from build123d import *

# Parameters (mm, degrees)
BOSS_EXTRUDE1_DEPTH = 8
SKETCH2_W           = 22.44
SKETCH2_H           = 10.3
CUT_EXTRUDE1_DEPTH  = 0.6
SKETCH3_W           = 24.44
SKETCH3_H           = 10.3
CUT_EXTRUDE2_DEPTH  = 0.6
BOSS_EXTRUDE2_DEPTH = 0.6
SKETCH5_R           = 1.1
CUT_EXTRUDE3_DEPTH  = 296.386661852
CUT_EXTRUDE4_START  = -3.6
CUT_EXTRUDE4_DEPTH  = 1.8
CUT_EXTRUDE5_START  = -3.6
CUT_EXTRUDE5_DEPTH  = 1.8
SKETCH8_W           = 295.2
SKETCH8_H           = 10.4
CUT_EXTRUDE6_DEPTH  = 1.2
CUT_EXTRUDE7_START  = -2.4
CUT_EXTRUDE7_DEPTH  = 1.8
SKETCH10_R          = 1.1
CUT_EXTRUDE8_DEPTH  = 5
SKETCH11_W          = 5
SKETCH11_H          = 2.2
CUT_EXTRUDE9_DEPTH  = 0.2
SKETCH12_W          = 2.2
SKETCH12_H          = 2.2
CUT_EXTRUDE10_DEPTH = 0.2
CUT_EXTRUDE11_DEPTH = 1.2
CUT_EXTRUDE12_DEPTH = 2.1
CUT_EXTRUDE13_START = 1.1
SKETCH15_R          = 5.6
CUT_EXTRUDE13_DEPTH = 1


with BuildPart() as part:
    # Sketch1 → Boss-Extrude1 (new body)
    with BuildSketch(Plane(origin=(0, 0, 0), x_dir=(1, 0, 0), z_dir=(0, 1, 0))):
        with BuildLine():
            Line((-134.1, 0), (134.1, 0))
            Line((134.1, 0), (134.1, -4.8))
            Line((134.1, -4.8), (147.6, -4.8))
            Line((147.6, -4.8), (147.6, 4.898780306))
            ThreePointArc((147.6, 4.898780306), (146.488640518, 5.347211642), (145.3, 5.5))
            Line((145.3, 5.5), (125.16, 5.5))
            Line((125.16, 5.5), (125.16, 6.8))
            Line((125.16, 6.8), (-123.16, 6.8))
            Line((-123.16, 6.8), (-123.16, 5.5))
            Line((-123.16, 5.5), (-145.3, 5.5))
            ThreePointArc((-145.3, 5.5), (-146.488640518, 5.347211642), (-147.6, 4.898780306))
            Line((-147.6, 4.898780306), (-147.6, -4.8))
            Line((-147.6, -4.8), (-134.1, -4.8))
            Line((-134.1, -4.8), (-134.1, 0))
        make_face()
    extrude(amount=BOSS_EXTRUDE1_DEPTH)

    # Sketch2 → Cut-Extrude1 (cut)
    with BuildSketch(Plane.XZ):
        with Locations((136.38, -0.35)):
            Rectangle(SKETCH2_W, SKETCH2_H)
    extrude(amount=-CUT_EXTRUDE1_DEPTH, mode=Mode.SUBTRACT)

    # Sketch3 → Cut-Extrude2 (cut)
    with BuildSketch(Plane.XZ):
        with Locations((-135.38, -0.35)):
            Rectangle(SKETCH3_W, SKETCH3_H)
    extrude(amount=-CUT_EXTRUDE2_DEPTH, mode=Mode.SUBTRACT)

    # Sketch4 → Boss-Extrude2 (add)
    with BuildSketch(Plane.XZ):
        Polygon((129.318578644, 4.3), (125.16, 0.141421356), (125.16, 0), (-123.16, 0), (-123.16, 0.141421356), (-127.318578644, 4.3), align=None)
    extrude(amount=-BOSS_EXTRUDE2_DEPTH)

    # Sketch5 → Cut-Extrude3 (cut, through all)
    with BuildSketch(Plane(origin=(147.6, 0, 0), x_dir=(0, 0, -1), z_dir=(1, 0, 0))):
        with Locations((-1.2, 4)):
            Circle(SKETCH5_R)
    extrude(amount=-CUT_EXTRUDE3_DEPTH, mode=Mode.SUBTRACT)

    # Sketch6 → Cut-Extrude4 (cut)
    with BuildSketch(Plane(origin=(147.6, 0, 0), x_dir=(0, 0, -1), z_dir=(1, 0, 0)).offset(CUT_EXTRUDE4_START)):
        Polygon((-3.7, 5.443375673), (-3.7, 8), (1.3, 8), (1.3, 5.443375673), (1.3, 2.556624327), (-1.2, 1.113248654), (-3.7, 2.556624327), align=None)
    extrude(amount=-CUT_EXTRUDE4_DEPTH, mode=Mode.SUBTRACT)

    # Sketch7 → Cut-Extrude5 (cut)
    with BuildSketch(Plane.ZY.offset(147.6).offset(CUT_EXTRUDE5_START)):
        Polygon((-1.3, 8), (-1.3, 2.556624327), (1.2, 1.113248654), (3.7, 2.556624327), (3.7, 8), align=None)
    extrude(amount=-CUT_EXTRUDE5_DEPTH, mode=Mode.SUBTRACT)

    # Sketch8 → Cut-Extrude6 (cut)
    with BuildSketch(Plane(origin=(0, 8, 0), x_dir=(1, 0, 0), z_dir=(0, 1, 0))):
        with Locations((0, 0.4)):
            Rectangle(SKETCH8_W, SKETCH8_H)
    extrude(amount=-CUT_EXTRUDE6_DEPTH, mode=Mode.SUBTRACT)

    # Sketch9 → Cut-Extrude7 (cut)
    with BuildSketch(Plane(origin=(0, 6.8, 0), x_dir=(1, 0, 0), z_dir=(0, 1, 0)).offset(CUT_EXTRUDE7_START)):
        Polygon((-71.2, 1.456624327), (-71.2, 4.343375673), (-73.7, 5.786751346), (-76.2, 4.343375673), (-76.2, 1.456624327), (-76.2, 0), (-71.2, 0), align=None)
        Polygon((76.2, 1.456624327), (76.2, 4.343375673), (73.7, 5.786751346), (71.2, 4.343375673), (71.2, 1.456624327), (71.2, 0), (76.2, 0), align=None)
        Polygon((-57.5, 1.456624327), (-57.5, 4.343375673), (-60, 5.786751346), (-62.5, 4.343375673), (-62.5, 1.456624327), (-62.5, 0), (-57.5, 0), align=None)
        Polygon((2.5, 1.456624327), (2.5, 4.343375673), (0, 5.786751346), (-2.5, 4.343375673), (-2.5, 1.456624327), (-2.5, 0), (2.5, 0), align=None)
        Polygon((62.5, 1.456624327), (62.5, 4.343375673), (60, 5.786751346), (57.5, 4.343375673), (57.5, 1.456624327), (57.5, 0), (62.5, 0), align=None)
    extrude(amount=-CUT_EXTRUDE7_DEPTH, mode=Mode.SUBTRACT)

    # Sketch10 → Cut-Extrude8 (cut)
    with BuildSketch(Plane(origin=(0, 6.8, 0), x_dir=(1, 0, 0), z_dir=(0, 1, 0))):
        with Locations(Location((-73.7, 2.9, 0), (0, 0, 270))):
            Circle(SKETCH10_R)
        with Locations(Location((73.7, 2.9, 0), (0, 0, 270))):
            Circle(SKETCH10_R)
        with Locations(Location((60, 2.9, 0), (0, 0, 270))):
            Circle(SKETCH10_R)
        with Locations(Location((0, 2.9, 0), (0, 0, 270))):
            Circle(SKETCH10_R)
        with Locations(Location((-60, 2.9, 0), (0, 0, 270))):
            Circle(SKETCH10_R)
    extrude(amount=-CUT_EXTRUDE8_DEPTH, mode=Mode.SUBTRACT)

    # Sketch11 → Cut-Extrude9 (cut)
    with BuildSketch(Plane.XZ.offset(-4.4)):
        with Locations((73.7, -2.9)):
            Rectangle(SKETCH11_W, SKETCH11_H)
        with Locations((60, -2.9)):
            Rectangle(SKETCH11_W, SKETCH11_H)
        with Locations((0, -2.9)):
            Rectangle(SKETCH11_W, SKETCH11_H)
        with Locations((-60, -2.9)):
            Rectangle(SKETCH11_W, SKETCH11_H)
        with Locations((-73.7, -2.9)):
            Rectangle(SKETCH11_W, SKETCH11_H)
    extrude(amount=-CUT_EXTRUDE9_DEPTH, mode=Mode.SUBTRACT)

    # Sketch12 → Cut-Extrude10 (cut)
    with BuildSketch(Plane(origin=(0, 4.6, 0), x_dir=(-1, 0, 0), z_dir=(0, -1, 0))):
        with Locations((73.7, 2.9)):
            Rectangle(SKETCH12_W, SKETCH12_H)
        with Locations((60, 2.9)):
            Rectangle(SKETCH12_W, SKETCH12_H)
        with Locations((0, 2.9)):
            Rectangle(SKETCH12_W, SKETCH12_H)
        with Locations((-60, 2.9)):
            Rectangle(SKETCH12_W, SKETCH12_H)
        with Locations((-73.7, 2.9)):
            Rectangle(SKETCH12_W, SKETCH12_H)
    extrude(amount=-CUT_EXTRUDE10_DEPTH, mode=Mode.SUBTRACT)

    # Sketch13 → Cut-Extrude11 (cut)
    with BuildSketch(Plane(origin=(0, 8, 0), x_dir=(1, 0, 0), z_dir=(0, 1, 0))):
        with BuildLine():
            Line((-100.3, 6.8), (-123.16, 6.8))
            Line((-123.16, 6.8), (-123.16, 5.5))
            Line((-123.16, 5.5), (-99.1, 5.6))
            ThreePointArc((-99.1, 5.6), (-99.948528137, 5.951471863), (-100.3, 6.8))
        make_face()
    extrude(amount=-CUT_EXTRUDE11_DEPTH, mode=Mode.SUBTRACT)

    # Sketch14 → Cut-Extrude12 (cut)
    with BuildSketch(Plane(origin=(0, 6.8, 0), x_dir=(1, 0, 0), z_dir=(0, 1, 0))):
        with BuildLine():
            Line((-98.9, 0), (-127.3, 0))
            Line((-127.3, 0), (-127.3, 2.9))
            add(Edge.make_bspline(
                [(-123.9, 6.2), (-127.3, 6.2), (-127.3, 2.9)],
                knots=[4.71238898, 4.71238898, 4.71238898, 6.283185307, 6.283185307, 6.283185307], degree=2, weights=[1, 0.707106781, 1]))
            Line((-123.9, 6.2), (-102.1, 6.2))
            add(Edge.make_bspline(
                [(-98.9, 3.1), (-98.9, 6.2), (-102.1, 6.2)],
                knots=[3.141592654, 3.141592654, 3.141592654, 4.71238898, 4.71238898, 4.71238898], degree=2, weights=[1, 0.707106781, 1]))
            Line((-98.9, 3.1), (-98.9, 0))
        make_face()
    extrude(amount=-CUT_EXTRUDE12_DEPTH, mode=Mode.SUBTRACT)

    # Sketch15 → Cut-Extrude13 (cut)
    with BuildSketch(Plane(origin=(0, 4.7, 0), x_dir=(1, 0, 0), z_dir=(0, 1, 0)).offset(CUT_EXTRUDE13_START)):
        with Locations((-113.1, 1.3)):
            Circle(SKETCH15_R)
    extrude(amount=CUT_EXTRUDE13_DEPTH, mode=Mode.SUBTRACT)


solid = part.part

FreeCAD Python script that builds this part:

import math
import FreeCAD as App
import Part
import Sketcher
from FreeCAD import Vector
Q = App.Units.Quantity

doc = App.newDocument("Part")
body = doc.addObject("PartDesign::Body", "Body")

sketch1 = doc.addObject("Sketcher::SketchObject", "Sketch")
body.addObject(sketch1)
sketch1.AttachmentSupport = (doc.XZ_Plane, [""])
sketch1.MapMode = "FlatFace"
sketch1.addGeometry(Part.LineSegment(Vector(-134.1, 0, 0), Vector(134.1, 0, 0)), False)
sketch1.addGeometry(Part.LineSegment(Vector(134.1, 0, 0), Vector(134.1, 4.8, 0)), False)
sketch1.addGeometry(Part.LineSegment(Vector(134.1, 4.8, 0), Vector(147.6, 4.8, 0)), False)
sketch1.addGeometry(Part.LineSegment(Vector(147.6, 4.8, 0), Vector(147.6, -4.9, 0)), False)
sketch1.addGeometry(Part.ArcOfCircle(Part.Circle(Vector(145.3, -0.8, 0), Vector(0, 0, 1), 4.7), math.radians(-90), math.radians(-61)), False)
sketch1.addGeometry(Part.LineSegment(Vector(145.3, -5.5, 0), Vector(125.2, -5.5, 0)), False)
sketch1.addGeometry(Part.LineSegment(Vector(125.2, -5.5, 0), Vector(125.2, -6.8, 0)), False)
sketch1.addGeometry(Part.LineSegment(Vector(125.2, -6.8, 0), Vector(-123.2, -6.8, 0)), False)
sketch1.addGeometry(Part.LineSegment(Vector(-123.2, -6.8, 0), Vector(-123.2, -5.5, 0)), False)
sketch1.addGeometry(Part.LineSegment(Vector(-123.2, -5.5, 0), Vector(-145.3, -5.5, 0)), False)
sketch1.addGeometry(Part.ArcOfCircle(Part.Circle(Vector(-145.3, -0.8, 0), Vector(0, 0, 1), 4.7), math.radians(-119), math.radians(-90)), False)
sketch1.addGeometry(Part.LineSegment(Vector(-147.6, -4.9, 0), Vector(-147.6, 4.8, 0)), False)
sketch1.addGeometry(Part.LineSegment(Vector(-147.6, 4.8, 0), Vector(-134.1, 4.8, 0)), False)
sketch1.addGeometry(Part.LineSegment(Vector(-134.1, 4.8, 0), Vector(-134.1, 0, 0)), False)
sketch1.addConstraint(Sketcher.Constraint("Coincident", 0, 2, 1, 1))
sketch1.addConstraint(Sketcher.Constraint("Coincident", 1, 2, 2, 1))
sketch1.addConstraint(Sketcher.Constraint("Coincident", 2, 2, 3, 1))
sketch1.addConstraint(Sketcher.Constraint("Coincident", 3, 2, 4, 2))
sketch1.addConstraint(Sketcher.Constraint("Tangent", 4, 1, 5, 1))
sketch1.addConstraint(Sketcher.Constraint("Coincident", 5, 2, 6, 1))
sketch1.addConstraint(Sketcher.Constraint("Coincident", 6, 2, 7, 1))
sketch1.addConstraint(Sketcher.Constraint("Coincident", 7, 2, 8, 1))
sketch1.addConstraint(Sketcher.Constraint("Coincident", 8, 2, 9, 1))
sketch1.addConstraint(Sketcher.Constraint("Tangent", 9, 2, 10, 2))
sketch1.addConstraint(Sketcher.Constraint("Coincident", 10, 1, 11, 1))
sketch1.addConstraint(Sketcher.Constraint("Coincident", 11, 2, 12, 1))
sketch1.addConstraint(Sketcher.Constraint("Coincident", 12, 2, 13, 1))
sketch1.addConstraint(Sketcher.Constraint("Coincident", 13, 2, 0, 1))
sketch1.addConstraint(Sketcher.Constraint("Horizontal", 0))
sketch1.addConstraint(Sketcher.Constraint("Vertical", 1))
sketch1.addConstraint(Sketcher.Constraint("Horizontal", 2))
sketch1.addConstraint(Sketcher.Constraint("Vertical", 3))
sketch1.addConstraint(Sketcher.Constraint("Horizontal", 5))
sketch1.addConstraint(Sketcher.Constraint("Vertical", 6))
sketch1.addConstraint(Sketcher.Constraint("Horizontal", 7))
sketch1.addConstraint(Sketcher.Constraint("Vertical", 8))
sketch1.addConstraint(Sketcher.Constraint("Horizontal", 9))
sketch1.addConstraint(Sketcher.Constraint("Vertical", 11))
sketch1.addConstraint(Sketcher.Constraint("Horizontal", 12))
sketch1.addConstraint(Sketcher.Constraint("Vertical", 13))
sketch1.addConstraint(Sketcher.Constraint("Equal", 4, 10))
sketch1.addConstraint(Sketcher.Constraint("Symmetric", 0, 2, 13, 2, -1, 1))
sketch1.addConstraint(Sketcher.Constraint("Symmetric", 4, 3, 10, 3, -2))
sketch1.addConstraint(Sketcher.Constraint("Symmetric", 2, 2, 11, 2, -2))
sketch1.addConstraint(Sketcher.Constraint("Radius", 4, 4.7))
sketch1.addConstraint(Sketcher.Constraint("DistanceX", 0, 1, 0, 2, 268.2))
sketch1.addConstraint(Sketcher.Constraint("DistanceX", 2, 1, 2, 2, 13.5))
sketch1.addConstraint(Sketcher.Constraint("DistanceY", 1, 1, 1, 2, 4.8))
sketch1.addConstraint(Sketcher.Constraint("DistanceY", 6, 2, 6, 1, 1.3))
sketch1.addConstraint(Sketcher.Constraint("DistanceX", 5, 2, 5, 1, 20.14))
sketch1.addConstraint(Sketcher.Constraint("DistanceX", 7, 2, 7, 1, 248.32))
sketch1.addConstraint(Sketcher.Constraint("DistanceX", 9, 2, 9, 1, 22.14))
sketch1.addConstraint(Sketcher.Constraint("DistanceY", 4, 3, -1, 1, 0.8))
pad1 = doc.addObject("PartDesign::Pad", "Pad")
body.addObject(pad1)
pad1.Profile = sketch1
pad1.Length = 8
pad1.Reversed = True

sketch2 = doc.addObject("Sketcher::SketchObject", "Sketch001")
body.addObject(sketch2)
sketch2.AttachmentSupport = (doc.XZ_Plane, [""])
sketch2.MapMode = "FlatFace"
sketch2.addGeometry(Part.LineSegment(Vector(125, 5, 0), Vector(125, -6, 0)), False)
sketch2.addGeometry(Part.LineSegment(Vector(125, -6, 0), Vector(148, -6, 0)), False)
sketch2.addGeometry(Part.LineSegment(Vector(148, -6, 0), Vector(148, 5, 0)), False)
sketch2.addGeometry(Part.LineSegment(Vector(148, 5, 0), Vector(125, 5, 0)), False)
sketch2.addConstraint(Sketcher.Constraint("Coincident", 0, 2, 1, 1))
sketch2.addConstraint(Sketcher.Constraint("Coincident", 1, 2, 2, 1))
sketch2.addConstraint(Sketcher.Constraint("Coincident", 2, 2, 3, 1))
sketch2.addConstraint(Sketcher.Constraint("Coincident", 3, 2, 0, 1))
sketch2.addConstraint(Sketcher.Constraint("Vertical", 0))
sketch2.addConstraint(Sketcher.Constraint("Horizontal", 1))
sketch2.addConstraint(Sketcher.Constraint("Vertical", 2))
sketch2.addConstraint(Sketcher.Constraint("Horizontal", 3))
sketch2.addConstraint(Sketcher.Constraint("DistanceY", 0, 2, 0, 1, 10.3))
sketch2.addConstraint(Sketcher.Constraint("DistanceX", 1, 1, 1, 2, 22.44))
sketch2.addConstraint(Sketcher.Constraint("DistanceY", 0, 2, -1, 1, 5.5))
sketch2.addConstraint(Sketcher.Constraint("DistanceX", -1, 1, 1, 2, 147.6))
pocket1 = doc.addObject("PartDesign::Pocket", "Pocket")
body.addObject(pocket1)
pocket1.Profile = sketch2
pocket1.Length = 0.6

sketch3 = doc.addObject("Sketcher::SketchObject", "Sketch002")
body.addObject(sketch3)
sketch3.AttachmentSupport = (doc.XZ_Plane, [""])
sketch3.MapMode = "FlatFace"
sketch3.addGeometry(Part.LineSegment(Vector(-148, 5, 0), Vector(-148, -6, 0)), False)
sketch3.addGeometry(Part.LineSegment(Vector(-148, -6, 0), Vector(-123, -6, 0)), False)
sketch3.addGeometry(Part.LineSegment(Vector(-123, -6, 0), Vector(-123, 5, 0)), False)
sketch3.addGeometry(Part.LineSegment(Vector(-123, 5, 0), Vector(-148, 5, 0)), False)
sketch3.addConstraint(Sketcher.Constraint("Coincident", 0, 2, 1, 1))
sketch3.addConstraint(Sketcher.Constraint("Coincident", 1, 2, 2, 1))
sketch3.addConstraint(Sketcher.Constraint("Coincident", 2, 2, 3, 1))
sketch3.addConstraint(Sketcher.Constraint("Coincident", 3, 2, 0, 1))
sketch3.addConstraint(Sketcher.Constraint("Vertical", 0))
sketch3.addConstraint(Sketcher.Constraint("Horizontal", 1))
sketch3.addConstraint(Sketcher.Constraint("Vertical", 2))
sketch3.addConstraint(Sketcher.Constraint("Horizontal", 3))
sketch3.addConstraint(Sketcher.Constraint("DistanceY", 0, 2, 0, 1, 10.3))
sketch3.addConstraint(Sketcher.Constraint("DistanceX", 1, 1, 1, 2, 24.44))
sketch3.addConstraint(Sketcher.Constraint("DistanceX", 0, 2, -1, 1, 147.6))
sketch3.addConstraint(Sketcher.Constraint("DistanceY", 0, 2, -1, 1, 5.5))
pocket2 = doc.addObject("PartDesign::Pocket", "Pocket001")
body.addObject(pocket2)
pocket2.Profile = sketch3
pocket2.Length = 0.6

sketch4 = doc.addObject("Sketcher::SketchObject", "Sketch003")
body.addObject(sketch4)
sketch4.AttachmentSupport = (doc.XZ_Plane, [""])
sketch4.MapMode = "FlatFace"
sketch4.addGeometry(Part.LineSegment(Vector(125.16, 0.14, 0), Vector(129.32, 4.3, 0)), False)
sketch4.addGeometry(Part.LineSegment(Vector(129.32, 4.3, 0), Vector(-127.32, 4.3, 0)), False)
sketch4.addGeometry(Part.LineSegment(Vector(-127.32, 4.3, 0), Vector(-123.16, 0.14, 0)), False)
sketch4.addGeometry(Part.LineSegment(Vector(-123.16, 0.14, 0), Vector(-123.16, 0, 0)), False)
sketch4.addGeometry(Part.LineSegment(Vector(-123.16, 0, 0), Vector(125.16, 0, 0)), False)
sketch4.addGeometry(Part.LineSegment(Vector(125.16, 0, 0), Vector(125.16, 0.14, 0)), False)
sketch4.addConstraint(Sketcher.Constraint("Coincident", 0, 2, 1, 1))
sketch4.addConstraint(Sketcher.Constraint("Coincident", 1, 2, 2, 1))
sketch4.addConstraint(Sketcher.Constraint("Coincident", 2, 2, 3, 1))
sketch4.addConstraint(Sketcher.Constraint("Coincident", 3, 2, 4, 1))
sketch4.addConstraint(Sketcher.Constraint("Coincident", 4, 2, 5, 1))
sketch4.addConstraint(Sketcher.Constraint("Coincident", 5, 2, 0, 1))
sketch4.addConstraint(Sketcher.Constraint("Horizontal", 1))
sketch4.addConstraint(Sketcher.Constraint("Vertical", 3))
sketch4.addConstraint(Sketcher.Constraint("Horizontal", 4))
sketch4.addConstraint(Sketcher.Constraint("Vertical", 5))
sketch4.addConstraint(Sketcher.Constraint("PointOnObject", 3, 2, -1))
sketch4.addConstraint(Sketcher.Constraint("Perpendicular", 0, 2))
sketch4.addConstraint(Sketcher.Constraint("Horizontal", 2, 2, 5, 2))
sketch4.addConstraint(Sketcher.Constraint("Equal", 0, 2))
sketch4.addConstraint(Sketcher.Constraint("DistanceX", 4, 1, 4, 2, 248.32))
sketch4.addConstraint(Sketcher.Constraint("DistanceY", -1, 1, 0, 2, 4.3))
sketch4.addConstraint(Sketcher.Constraint("DistanceX", 2, 2, -1, 1, 123.16))
sketch4.addConstraint(Sketcher.Constraint("DistanceY", 3, 2, 3, 1, 0.141421))
pad2 = doc.addObject("PartDesign::Pad", "Pad001")
body.addObject(pad2)
pad2.Profile = sketch4
pad2.Length = 0.6
pad2.Reversed = True

sketch5 = doc.addObject("Sketcher::SketchObject", "Sketch004")
body.addObject(sketch5)
sketch5.AttachmentSupport = (doc.YZ_Plane, [""])
sketch5.MapMode = "FlatFace"
sketch5.AttachmentOffset = App.Placement(Vector(0, 0, 147.6), App.Rotation())
sketch5.addGeometry(Part.Circle(Vector(4, 1.2, 0), Vector(0, 0, 1), 1.1), False)
sketch5.addConstraint(Sketcher.Constraint("Diameter", 0, 2.2))
sketch5.addConstraint(Sketcher.Constraint("DistanceX", -1, 1, 0, 3, 4.0))
sketch5.addConstraint(Sketcher.Constraint("DistanceY", -1, 1, 0, 3, 1.2))
pocket3 = doc.addObject("PartDesign::Pocket", "Pocket002")
body.addObject(pocket3)
pocket3.Profile = sketch5
pocket3.Type = "ThroughAll"

sketch6 = doc.addObject("Sketcher::SketchObject", "Sketch005")
body.addObject(sketch6)
sketch6.AttachmentSupport = (doc.YZ_Plane, [""])
sketch6.MapMode = "FlatFace"
sketch6.AttachmentOffset = App.Placement(Vector(0, 0, 144), App.Rotation())
sketch6.addGeometry(Part.LineSegment(Vector(8, 3.7, 0), Vector(2.6, 3.7, 0)), False)
sketch6.addGeometry(Part.LineSegment(Vector(2.6, 3.7, 0), Vector(1.1, 1.2, 0)), False)
sketch6.addGeometry(Part.LineSegment(Vector(1.1, 1.2, 0), Vector(2.6, -1.3, 0)), False)
sketch6.addGeometry(Part.LineSegment(Vector(2.6, -1.3, 0), Vector(8, -1.3, 0)), False)
sketch6.addGeometry(Part.LineSegment(Vector(8, -1.3, 0), Vector(8, 3.7, 0)), False)
sketch6.addConstraint(Sketcher.Constraint("Coincident", 0, 2, 1, 1))
sketch6.addConstraint(Sketcher.Constraint("Coincident", 1, 2, 2, 1))
sketch6.addConstraint(Sketcher.Constraint("Coincident", 2, 2, 3, 1))
sketch6.addConstraint(Sketcher.Constraint("Coincident", 3, 2, 4, 1))
sketch6.addConstraint(Sketcher.Constraint("Coincident", 4, 2, 0, 1))
sketch6.addConstraint(Sketcher.Constraint("Horizontal", 0))
sketch6.addConstraint(Sketcher.Constraint("Horizontal", 3))
sketch6.addConstraint(Sketcher.Constraint("Vertical", 4))
sketch6.addConstraint(Sketcher.Constraint("Vertical", 0, 2, 2, 2))
sketch6.addConstraint(Sketcher.Constraint("Equal", 1, 2))
sketch6.addConstraint(Sketcher.Constraint("DistanceY", 4, 1, 4, 2, 5.0))
sketch6.addConstraint(Sketcher.Constraint("Angle", 1, Q("-120 deg")))
sketch6.addConstraint(Sketcher.Constraint("DistanceX", -1, 1, 3, 2, 8.0))
sketch6.addConstraint(Sketcher.Constraint("DistanceY", -1, 1, 0, 2, 3.7))
sketch6.addConstraint(Sketcher.Constraint("DistanceX", 0, 2, 0, 1, 5.443376))
pocket4 = doc.addObject("PartDesign::Pocket", "Pocket003")
body.addObject(pocket4)
pocket4.Profile = sketch6
pocket4.Length = 1.8

sketch7 = doc.addObject("Sketcher::SketchObject", "Sketch006")
body.addObject(sketch7)
sketch7.AttachmentSupport = (doc.YZ_Plane, [""])
sketch7.MapMode = "FlatFace"
sketch7.AttachmentOffset = App.Placement(Vector(0, 0, -144), App.Rotation())
sketch7.addGeometry(Part.LineSegment(Vector(8, -1.3, 0), Vector(2.6, -1.3, 0)), False)
sketch7.addGeometry(Part.LineSegment(Vector(2.6, -1.3, 0), Vector(1.1, 1.2, 0)), False)
sketch7.addGeometry(Part.LineSegment(Vector(1.1, 1.2, 0), Vector(2.6, 3.7, 0)), False)
sketch7.addGeometry(Part.LineSegment(Vector(2.6, 3.7, 0), Vector(8, 3.7, 0)), False)
sketch7.addGeometry(Part.LineSegment(Vector(8, 3.7, 0), Vector(8, -1.3, 0)), False)
sketch7.addConstraint(Sketcher.Constraint("Coincident", 0, 2, 1, 1))
sketch7.addConstraint(Sketcher.Constraint("Coincident", 1, 2, 2, 1))
sketch7.addConstraint(Sketcher.Constraint("Coincident", 2, 2, 3, 1))
sketch7.addConstraint(Sketcher.Constraint("Coincident", 3, 2, 4, 1))
sketch7.addConstraint(Sketcher.Constraint("Coincident", 4, 2, 0, 1))
sketch7.addConstraint(Sketcher.Constraint("Horizontal", 0))
sketch7.addConstraint(Sketcher.Constraint("Horizontal", 3))
sketch7.addConstraint(Sketcher.Constraint("Vertical", 4))
sketch7.addConstraint(Sketcher.Constraint("Vertical", 0, 2, 2, 2))
sketch7.addConstraint(Sketcher.Constraint("Equal", 1, 2))
sketch7.addConstraint(Sketcher.Constraint("DistanceY", 4, 2, 4, 1, 5.0))
sketch7.addConstraint(Sketcher.Constraint("Angle", 1, Q("120 deg")))
sketch7.addConstraint(Sketcher.Constraint("DistanceX", -1, 1, 3, 2, 8.0))
sketch7.addConstraint(Sketcher.Constraint("DistanceY", 0, 2, -1, 1, 1.3))
sketch7.addConstraint(Sketcher.Constraint("DistanceX", 0, 2, 0, 1, 5.443376))
pocket5 = doc.addObject("PartDesign::Pocket", "Pocket004")
body.addObject(pocket5)
pocket5.Profile = sketch7
pocket5.Length = 1.8
pocket5.Reversed = True

sketch8 = doc.addObject("Sketcher::SketchObject", "Sketch007")
body.addObject(sketch8)
sketch8.AttachmentSupport = (doc.XZ_Plane, [""])
sketch8.MapMode = "FlatFace"
sketch8.AttachmentOffset = App.Placement(Vector(0, 0, -8), App.Rotation())
sketch8.addGeometry(Part.LineSegment(Vector(-148, -6, 0), Vector(-148, 5, 0)), False)
sketch8.addGeometry(Part.LineSegment(Vector(-148, 5, 0), Vector(148, 5, 0)), False)
sketch8.addGeometry(Part.LineSegment(Vector(148, 5, 0), Vector(148, -6, 0)), False)
sketch8.addGeometry(Part.LineSegment(Vector(148, -6, 0), Vector(-148, -6, 0)), False)
sketch8.addConstraint(Sketcher.Constraint("Coincident", 0, 2, 1, 1))
sketch8.addConstraint(Sketcher.Constraint("Coincident", 1, 2, 2, 1))
sketch8.addConstraint(Sketcher.Constraint("Coincident", 2, 2, 3, 1))
sketch8.addConstraint(Sketcher.Constraint("Coincident", 3, 2, 0, 1))
sketch8.addConstraint(Sketcher.Constraint("Vertical", 0))
sketch8.addConstraint(Sketcher.Constraint("Horizontal", 1))
sketch8.addConstraint(Sketcher.Constraint("Vertical", 2))
sketch8.addConstraint(Sketcher.Constraint("Horizontal", 3))
sketch8.addConstraint(Sketcher.Constraint("DistanceX", 1, 1, 1, 2, 295.2))
sketch8.addConstraint(Sketcher.Constraint("DistanceY", 0, 1, 0, 2, 10.4))
sketch8.addConstraint(Sketcher.Constraint("DistanceX", 0, 2, -1, 1, 147.6))
sketch8.addConstraint(Sketcher.Constraint("DistanceY", -1, 1, 0, 2, 4.8))
pocket6 = doc.addObject("PartDesign::Pocket", "Pocket005")
body.addObject(pocket6)
pocket6.Profile = sketch8
pocket6.Length = 1.2
pocket6.Reversed = True

sketch9 = doc.addObject("Sketcher::SketchObject", "Sketch008")
body.addObject(sketch9)
sketch9.AttachmentSupport = (doc.XZ_Plane, [""])
sketch9.MapMode = "FlatFace"
sketch9.AttachmentOffset = App.Placement(Vector(0, 0, -4.4), App.Rotation())
sketch9.addGeometry(Part.LineSegment(Vector(-71.2, -4.3, 0), Vector(-73.7, -5.8, 0)), False)
sketch9.addGeometry(Part.LineSegment(Vector(-73.7, -5.8, 0), Vector(-76.2, -4.3, 0)), False)
sketch9.addGeometry(Part.LineSegment(Vector(-76.2, -4.3, 0), Vector(-76.2, 0, 0)), False)
sketch9.addGeometry(Part.LineSegment(Vector(-76.2, 0, 0), Vector(-71.2, 0, 0)), False)
sketch9.addGeometry(Part.LineSegment(Vector(-71.2, 0, 0), Vector(-71.2, -4.3, 0)), False)
sketch9.addGeometry(Part.LineSegment(Vector(76.2, -4.3, 0), Vector(73.7, -5.8, 0)), False)
sketch9.addGeometry(Part.LineSegment(Vector(73.7, -5.8, 0), Vector(71.2, -4.3, 0)), False)
sketch9.addGeometry(Part.LineSegment(Vector(71.2, -4.3, 0), Vector(71.2, 0, 0)), False)
sketch9.addGeometry(Part.LineSegment(Vector(71.2, 0, 0), Vector(76.2, 0, 0)), False)
sketch9.addGeometry(Part.LineSegment(Vector(76.2, 0, 0), Vector(76.2, -4.3, 0)), False)
sketch9.addGeometry(Part.LineSegment(Vector(-57.5, -4.3, 0), Vector(-60, -5.8, 0)), False)
sketch9.addGeometry(Part.LineSegment(Vector(-60, -5.8, 0), Vector(-62.5, -4.3, 0)), False)
sketch9.addGeometry(Part.LineSegment(Vector(-62.5, -4.3, 0), Vector(-62.5, 0, 0)), False)
sketch9.addGeometry(Part.LineSegment(Vector(-62.5, 0, 0), Vector(-57.5, 0, 0)), False)
sketch9.addGeometry(Part.LineSegment(Vector(-57.5, 0, 0), Vector(-57.5, -4.3, 0)), False)
sketch9.addGeometry(Part.LineSegment(Vector(2.5, -4.3, 0), Vector(0, -5.8, 0)), False)
sketch9.addGeometry(Part.LineSegment(Vector(0, -5.8, 0), Vector(-2.5, -4.3, 0)), False)
sketch9.addGeometry(Part.LineSegment(Vector(-2.5, -4.3, 0), Vector(-2.5, 0, 0)), False)
sketch9.addGeometry(Part.LineSegment(Vector(-2.5, 0, 0), Vector(2.5, 0, 0)), False)
sketch9.addGeometry(Part.LineSegment(Vector(2.5, 0, 0), Vector(2.5, -4.3, 0)), False)
sketch9.addGeometry(Part.LineSegment(Vector(62.5, -4.3, 0), Vector(60, -5.8, 0)), False)
sketch9.addGeometry(Part.LineSegment(Vector(60, -5.8, 0), Vector(57.5, -4.3, 0)), False)
sketch9.addGeometry(Part.LineSegment(Vector(57.5, -4.3, 0), Vector(57.5, 0, 0)), False)
sketch9.addGeometry(Part.LineSegment(Vector(57.5, 0, 0), Vector(62.5, 0, 0)), False)
sketch9.addGeometry(Part.LineSegment(Vector(62.5, 0, 0), Vector(62.5, -4.3, 0)), False)
sketch9.addConstraint(Sketcher.Constraint("Coincident", 0, 2, 1, 1))
sketch9.addConstraint(Sketcher.Constraint("Coincident", 1, 2, 2, 1))
sketch9.addConstraint(Sketcher.Constraint("Coincident", 2, 2, 3, 1))
sketch9.addConstraint(Sketcher.Constraint("Coincident", 3, 2, 4, 1))
sketch9.addConstraint(Sketcher.Constraint("Coincident", 4, 2, 0, 1))
sketch9.addConstraint(Sketcher.Constraint("Coincident", 5, 2, 6, 1))
sketch9.addConstraint(Sketcher.Constraint("Coincident", 6, 2, 7, 1))
sketch9.addConstraint(Sketcher.Constraint("Coincident", 7, 2, 8, 1))
sketch9.addConstraint(Sketcher.Constraint("Coincident", 8, 2, 9, 1))
sketch9.addConstraint(Sketcher.Constraint("Coincident", 9, 2, 5, 1))
sketch9.addConstraint(Sketcher.Constraint("Coincident", 10, 2, 11, 1))
sketch9.addConstraint(Sketcher.Constraint("Coincident", 11, 2, 12, 1))
sketch9.addConstraint(Sketcher.Constraint("Coincident", 12, 2, 13, 1))
sketch9.addConstraint(Sketcher.Constraint("Coincident", 13, 2, 14, 1))
sketch9.addConstraint(Sketcher.Constraint("Coincident", 14, 2, 10, 1))
sketch9.addConstraint(Sketcher.Constraint("Coincident", 15, 2, 16, 1))
sketch9.addConstraint(Sketcher.Constraint("Coincident", 16, 2, 17, 1))
sketch9.addConstraint(Sketcher.Constraint("Coincident", 17, 2, 18, 1))
sketch9.addConstraint(Sketcher.Constraint("Coincident", 18, 2, 19, 1))
sketch9.addConstraint(Sketcher.Constraint("Coincident", 19, 2, 15, 1))
sketch9.addConstraint(Sketcher.Constraint("Coincident", 20, 2, 21, 1))
sketch9.addConstraint(Sketcher.Constraint("Coincident", 21, 2, 22, 1))
sketch9.addConstraint(Sketcher.Constraint("Coincident", 22, 2, 23, 1))
sketch9.addConstraint(Sketcher.Constraint("Coincident", 23, 2, 24, 1))
sketch9.addConstraint(Sketcher.Constraint("Coincident", 24, 2, 20, 1))
sketch9.addConstraint(Sketcher.Constraint("Vertical", 2))
sketch9.addConstraint(Sketcher.Constraint("Horizontal", 3))
sketch9.addConstraint(Sketcher.Constraint("Vertical", 4))
sketch9.addConstraint(Sketcher.Constraint("Vertical", 7))
sketch9.addConstraint(Sketcher.Constraint("Horizontal", 8))
sketch9.addConstraint(Sketcher.Constraint("Vertical", 9))
sketch9.addConstraint(Sketcher.Constraint("Vertical", 12))
sketch9.addConstraint(Sketcher.Constraint("Horizontal", 13))
sketch9.addConstraint(Sketcher.Constraint("Vertical", 14))
sketch9.addConstraint(Sketcher.Constraint("Vertical", 17))
sketch9.addConstraint(Sketcher.Constraint("Horizontal", 18))
sketch9.addConstraint(Sketcher.Constraint("Vertical", 19))
sketch9.addConstraint(Sketcher.Constraint("Vertical", 22))
sketch9.addConstraint(Sketcher.Constraint("Horizontal", 23))
sketch9.addConstraint(Sketcher.Constraint("Vertical", 24))
sketch9.addConstraint(Sketcher.Constraint("Symmetric", 3, 2, 7, 2, -1, 1))
sketch9.addConstraint(Sketcher.Constraint("Symmetric", 17, 2, 18, 2, -1, 1))
sketch9.addConstraint(Sketcher.Constraint("Symmetric", 13, 2, 22, 2, -1, 1))
sketch9.addConstraint(Sketcher.Constraint("Symmetric", 0, 2, 5, 2, -2))
sketch9.addConstraint(Sketcher.Constraint("Symmetric", 2, 2, 8, 2, -2))
sketch9.addConstraint(Sketcher.Constraint("Symmetric", 10, 2, 20, 2, -2))
sketch9.addConstraint(Sketcher.Constraint("Symmetric", 12, 2, 23, 2, -2))
sketch9.addConstraint(Sketcher.Constraint("PointOnObject", 15, 2, -2))
sketch9.addConstraint(Sketcher.Constraint("Parallel", 0, 5))
sketch9.addConstraint(Sketcher.Constraint("Parallel", 1, 6))
sketch9.addConstraint(Sketcher.Constraint("Parallel", 5, 10))
sketch9.addConstraint(Sketcher.Constraint("Parallel", 6, 11))
sketch9.addConstraint(Sketcher.Constraint("Parallel", 10, 15))
sketch9.addConstraint(Sketcher.Constraint("Parallel", 11, 16))
sketch9.addConstraint(Sketcher.Constraint("Parallel", 15, 20))
sketch9.addConstraint(Sketcher.Constraint("Parallel", 16, 21))
sketch9.addConstraint(Sketcher.Constraint("Horizontal", 1, 2, 4, 2))
sketch9.addConstraint(Sketcher.Constraint("Horizontal", 4, 2, 6, 2))
sketch9.addConstraint(Sketcher.Constraint("Horizontal", 5, 2, 10, 2))
sketch9.addConstraint(Sketcher.Constraint("Horizontal", 9, 2, 11, 2))
sketch9.addConstraint(Sketcher.Constraint("Horizontal", 11, 2, 14, 2))
sketch9.addConstraint(Sketcher.Constraint("Horizontal", 10, 2, 15, 2))
sketch9.addConstraint(Sketcher.Constraint("Horizontal", 14, 2, 16, 2))
sketch9.addConstraint(Sketcher.Constraint("DistanceX", 3, 1, 3, 2, 5.0))
sketch9.addConstraint(Sketcher.Constraint("Angle", 0, Q("-150 deg")))
sketch9.addConstraint(Sketcher.Constraint("DistanceX", 10, 2, -1, 1, 60.0))
sketch9.addConstraint(Sketcher.Constraint("DistanceX", 0, 2, -1, 1, 73.7))
sketch9.addConstraint(Sketcher.Constraint("DistanceY", 2, 1, 2, 2, 4.343376))
pocket7 = doc.addObject("PartDesign::Pocket", "Pocket006")
body.addObject(pocket7)
pocket7.Profile = sketch9
pocket7.Length = 1.8
pocket7.Reversed = True

sketch10 = doc.addObject("Sketcher::SketchObject", "Sketch009")
body.addObject(sketch10)
sketch10.AttachmentSupport = (doc.XZ_Plane, [""])
sketch10.MapMode = "FlatFace"
sketch10.AttachmentOffset = App.Placement(Vector(0, 0, -6.8), App.Rotation())
sketch10.addGeometry(Part.Circle(Vector(-73.7, -2.9, 0), Vector(0, 0, 1), 1.1), False)
sketch10.addGeometry(Part.Circle(Vector(73.7, -2.9, 0), Vector(0, 0, 1), 1.1), False)
sketch10.addGeometry(Part.Circle(Vector(60, -2.9, 0), Vector(0, 0, 1), 1.1), False)
sketch10.addGeometry(Part.Circle(Vector(0, -2.9, 0), Vector(0, 0, 1), 1.1), False)
sketch10.addGeometry(Part.Circle(Vector(-60, -2.9, 0), Vector(0, 0, 1), 1.1), False)
sketch10.addConstraint(Sketcher.Constraint("Equal", 0, 1))
sketch10.addConstraint(Sketcher.Constraint("Equal", 1, 2))
sketch10.addConstraint(Sketcher.Constraint("Equal", 2, 3))
sketch10.addConstraint(Sketcher.Constraint("Equal", 3, 4))
sketch10.addConstraint(Sketcher.Constraint("Symmetric", 0, 3, 1, 3, -2))
sketch10.addConstraint(Sketcher.Constraint("Symmetric", 2, 3, 4, 3, -2))
sketch10.addConstraint(Sketcher.Constraint("PointOnObject", 3, 3, -2))
sketch10.addConstraint(Sketcher.Constraint("Horizontal", 1, 3, 2, 3))
sketch10.addConstraint(Sketcher.Constraint("Horizontal", 2, 3, 3, 3))
sketch10.addConstraint(Sketcher.Constraint("Diameter", 0, 2.2))
sketch10.addConstraint(Sketcher.Constraint("DistanceX", -1, 1, 2, 3, 60.0))
sketch10.addConstraint(Sketcher.Constraint("DistanceX", 0, 3, -1, 1, 73.7))
sketch10.addConstraint(Sketcher.Constraint("DistanceY", 0, 3, -1, 1, 2.9))
pocket8 = doc.addObject("PartDesign::Pocket", "Pocket007")
body.addObject(pocket8)
pocket8.Profile = sketch10
pocket8.Length = 5
pocket8.Reversed = True

sketch11 = doc.addObject("Sketcher::SketchObject", "Sketch010")
body.addObject(sketch11)
sketch11.AttachmentSupport = (doc.XZ_Plane, [""])
sketch11.MapMode = "FlatFace"
sketch11.AttachmentOffset = App.Placement(Vector(0, 0, -4.4), App.Rotation())
sketch11.addGeometry(Part.LineSegment(Vector(71.2, -1.8, 0), Vector(71.2, -4, 0)), False)
sketch11.addGeometry(Part.LineSegment(Vector(71.2, -4, 0), Vector(76.2, -4, 0)), False)
sketch11.addGeometry(Part.LineSegment(Vector(76.2, -4, 0), Vector(76.2, -1.8, 0)), False)
sketch11.addGeometry(Part.LineSegment(Vector(76.2, -1.8, 0), Vector(71.2, -1.8, 0)), False)
sketch11.addGeometry(Part.LineSegment(Vector(57.5, -1.8, 0), Vector(57.5, -4, 0)), False)
sketch11.addGeometry(Part.LineSegment(Vector(57.5, -4, 0), Vector(62.5, -4, 0)), False)
sketch11.addGeometry(Part.LineSegment(Vector(62.5, -4, 0), Vector(62.5, -1.8, 0)), False)
sketch11.addGeometry(Part.LineSegment(Vector(62.5, -1.8, 0), Vector(57.5, -1.8, 0)), False)
sketch11.addGeometry(Part.LineSegment(Vector(-2.5, -1.8, 0), Vector(-2.5, -4, 0)), False)
sketch11.addGeometry(Part.LineSegment(Vector(-2.5, -4, 0), Vector(2.5, -4, 0)), False)
sketch11.addGeometry(Part.LineSegment(Vector(2.5, -4, 0), Vector(2.5, -1.8, 0)), False)
sketch11.addGeometry(Part.LineSegment(Vector(2.5, -1.8, 0), Vector(-2.5, -1.8, 0)), False)
sketch11.addGeometry(Part.LineSegment(Vector(-62.5, -1.8, 0), Vector(-62.5, -4, 0)), False)
sketch11.addGeometry(Part.LineSegment(Vector(-62.5, -4, 0), Vector(-57.5, -4, 0)), False)
sketch11.addGeometry(Part.LineSegment(Vector(-57.5, -4, 0), Vector(-57.5, -1.8, 0)), False)
sketch11.addGeometry(Part.LineSegment(Vector(-57.5, -1.8, 0), Vector(-62.5, -1.8, 0)), False)
sketch11.addGeometry(Part.LineSegment(Vector(-76.2, -1.8, 0), Vector(-76.2, -4, 0)), False)
sketch11.addGeometry(Part.LineSegment(Vector(-76.2, -4, 0), Vector(-71.2, -4, 0)), False)
sketch11.addGeometry(Part.LineSegment(Vector(-71.2, -4, 0), Vector(-71.2, -1.8, 0)), False)
sketch11.addGeometry(Part.LineSegment(Vector(-71.2, -1.8, 0), Vector(-76.2, -1.8, 0)), False)
sketch11.addConstraint(Sketcher.Constraint("Coincident", 0, 2, 1, 1))
sketch11.addConstraint(Sketcher.Constraint("Coincident", 1, 2, 2, 1))
sketch11.addConstraint(Sketcher.Constraint("Coincident", 2, 2, 3, 1))
sketch11.addConstraint(Sketcher.Constraint("Coincident", 3, 2, 0, 1))
sketch11.addConstraint(Sketcher.Constraint("Coincident", 4, 2, 5, 1))
sketch11.addConstraint(Sketcher.Constraint("Coincident", 5, 2, 6, 1))
sketch11.addConstraint(Sketcher.Constraint("Coincident", 6, 2, 7, 1))
sketch11.addConstraint(Sketcher.Constraint("Coincident", 7, 2, 4, 1))
sketch11.addConstraint(Sketcher.Constraint("Coincident", 8, 2, 9, 1))
sketch11.addConstraint(Sketcher.Constraint("Coincident", 9, 2, 10, 1))
sketch11.addConstraint(Sketcher.Constraint("Coincident", 10, 2, 11, 1))
sketch11.addConstraint(Sketcher.Constraint("Coincident", 11, 2, 8, 1))
sketch11.addConstraint(Sketcher.Constraint("Coincident", 12, 2, 13, 1))
sketch11.addConstraint(Sketcher.Constraint("Coincident", 13, 2, 14, 1))
sketch11.addConstraint(Sketcher.Constraint("Coincident", 14, 2, 15, 1))
sketch11.addConstraint(Sketcher.Constraint("Coincident", 15, 2, 12, 1))
sketch11.addConstraint(Sketcher.Constraint("Coincident", 16, 2, 17, 1))
sketch11.addConstraint(Sketcher.Constraint("Coincident", 17, 2, 18, 1))
sketch11.addConstraint(Sketcher.Constraint("Coincident", 18, 2, 19, 1))
sketch11.addConstraint(Sketcher.Constraint("Coincident", 19, 2, 16, 1))
sketch11.addConstraint(Sketcher.Constraint("Vertical", 0))
sketch11.addConstraint(Sketcher.Constraint("Horizontal", 1))
sketch11.addConstraint(Sketcher.Constraint("Vertical", 2))
sketch11.addConstraint(Sketcher.Constraint("Horizontal", 3))
sketch11.addConstraint(Sketcher.Constraint("Vertical", 4))
sketch11.addConstraint(Sketcher.Constraint("Horizontal", 5))
sketch11.addConstraint(Sketcher.Constraint("Vertical", 6))
sketch11.addConstraint(Sketcher.Constraint("Horizontal", 7))
sketch11.addConstraint(Sketcher.Constraint("Vertical", 8))
sketch11.addConstraint(Sketcher.Constraint("Horizontal", 9))
sketch11.addConstraint(Sketcher.Constraint("Vertical", 10))
sketch11.addConstraint(Sketcher.Constraint("Horizontal", 11))
sketch11.addConstraint(Sketcher.Constraint("Vertical", 12))
sketch11.addConstraint(Sketcher.Constraint("Horizontal", 13))
sketch11.addConstraint(Sketcher.Constraint("Vertical", 14))
sketch11.addConstraint(Sketcher.Constraint("Horizontal", 15))
sketch11.addConstraint(Sketcher.Constraint("Vertical", 16))
sketch11.addConstraint(Sketcher.Constraint("Horizontal", 17))
sketch11.addConstraint(Sketcher.Constraint("Vertical", 18))
sketch11.addConstraint(Sketcher.Constraint("Horizontal", 19))
sketch11.addConstraint(Sketcher.Constraint("Symmetric", 5, 2, 12, 2, -2))
sketch11.addConstraint(Sketcher.Constraint("Symmetric", 7, 2, 14, 2, -2))
sketch11.addConstraint(Sketcher.Constraint("Symmetric", 1, 2, 16, 2, -2))
sketch11.addConstraint(Sketcher.Constraint("Symmetric", 3, 2, 18, 2, -2))
sketch11.addConstraint(Sketcher.Constraint("Horizontal", 1, 2, 4, 2))
sketch11.addConstraint(Sketcher.Constraint("Horizontal", 3, 2, 6, 2))
sketch11.addConstraint(Sketcher.Constraint("Horizontal", 5, 2, 8, 2))
sketch11.addConstraint(Sketcher.Constraint("Horizontal", 7, 2, 10, 2))
sketch11.addConstraint(Sketcher.Constraint("Equal", 3, 5))
sketch11.addConstraint(Sketcher.Constraint("Equal", 7, 9))
sketch11.addConstraint(Sketcher.Constraint("DistanceX", 1, 1, 1, 2, 5.0))
sketch11.addConstraint(Sketcher.Constraint("DistanceY", 0, 2, 0, 1, 2.2))
sketch11.addConstraint(Sketcher.Constraint("DistanceY", 0, 2, -1, 1, 4.0))
sketch11.addConstraint(Sketcher.Constraint("DistanceX", 8, 2, 4, 2, 60.0))
sketch11.addConstraint(Sketcher.Constraint("DistanceX", 12, 2, 8, 2, 60.0))
sketch11.addConstraint(Sketcher.Constraint("DistanceX", -1, 1, 0, 2, 71.2))
pocket9 = doc.addObject("PartDesign::Pocket", "Pocket008")
body.addObject(pocket9)
pocket9.Profile = sketch11
pocket9.Length = 0.2

sketch12 = doc.addObject("Sketcher::SketchObject", "Sketch011")
body.addObject(sketch12)
sketch12.AttachmentSupport = (doc.XZ_Plane, [""])
sketch12.MapMode = "FlatFace"
sketch12.AttachmentOffset = App.Placement(Vector(0, 0, -4.6), App.Rotation())
sketch12.addGeometry(Part.LineSegment(Vector(-72.6, -4, 0), Vector(-72.6, -1.8, 0)), False)
sketch12.addGeometry(Part.LineSegment(Vector(-72.6, -1.8, 0), Vector(-74.8, -1.8, 0)), False)
sketch12.addGeometry(Part.LineSegment(Vector(-74.8, -1.8, 0), Vector(-74.8, -4, 0)), False)
sketch12.addGeometry(Part.LineSegment(Vector(-74.8, -4, 0), Vector(-72.6, -4, 0)), False)
sketch12.addGeometry(Part.LineSegment(Vector(-58.9, -4, 0), Vector(-58.9, -1.8, 0)), False)
sketch12.addGeometry(Part.LineSegment(Vector(-58.9, -1.8, 0), Vector(-61.1, -1.8, 0)), False)
sketch12.addGeometry(Part.LineSegment(Vector(-61.1, -1.8, 0), Vector(-61.1, -4, 0)), False)
sketch12.addGeometry(Part.LineSegment(Vector(-61.1, -4, 0), Vector(-58.9, -4, 0)), False)
sketch12.addGeometry(Part.LineSegment(Vector(1.1, -4, 0), Vector(1.1, -1.8, 0)), False)
sketch12.addGeometry(Part.LineSegment(Vector(1.1, -1.8, 0), Vector(-1.1, -1.8, 0)), False)
sketch12.addGeometry(Part.LineSegment(Vector(-1.1, -1.8, 0), Vector(-1.1, -4, 0)), False)
sketch12.addGeometry(Part.LineSegment(Vector(-1.1, -4, 0), Vector(1.1, -4, 0)), False)
sketch12.addGeometry(Part.LineSegment(Vector(61.1, -4, 0), Vector(61.1, -1.8, 0)), False)
sketch12.addGeometry(Part.LineSegment(Vector(61.1, -1.8, 0), Vector(58.9, -1.8, 0)), False)
sketch12.addGeometry(Part.LineSegment(Vector(58.9, -1.8, 0), Vector(58.9, -4, 0)), False)
sketch12.addGeometry(Part.LineSegment(Vector(58.9, -4, 0), Vector(61.1, -4, 0)), False)
sketch12.addGeometry(Part.LineSegment(Vector(74.8, -4, 0), Vector(74.8, -1.8, 0)), False)
sketch12.addGeometry(Part.LineSegment(Vector(74.8, -1.8, 0), Vector(72.6, -1.8, 0)), False)
sketch12.addGeometry(Part.LineSegment(Vector(72.6, -1.8, 0), Vector(72.6, -4, 0)), False)
sketch12.addGeometry(Part.LineSegment(Vector(72.6, -4, 0), Vector(74.8, -4, 0)), False)
sketch12.addConstraint(Sketcher.Constraint("Coincident", 0, 2, 1, 1))
sketch12.addConstraint(Sketcher.Constraint("Coincident", 1, 2, 2, 1))
sketch12.addConstraint(Sketcher.Constraint("Coincident", 2, 2, 3, 1))
sketch12.addConstraint(Sketcher.Constraint("Coincident", 3, 2, 0, 1))
sketch12.addConstraint(Sketcher.Constraint("Coincident", 4, 2, 5, 1))
sketch12.addConstraint(Sketcher.Constraint("Coincident", 5, 2, 6, 1))
sketch12.addConstraint(Sketcher.Constraint("Coincident", 6, 2, 7, 1))
sketch12.addConstraint(Sketcher.Constraint("Coincident", 7, 2, 4, 1))
sketch12.addConstraint(Sketcher.Constraint("Coincident", 8, 2, 9, 1))
sketch12.addConstraint(Sketcher.Constraint("Coincident", 9, 2, 10, 1))
sketch12.addConstraint(Sketcher.Constraint("Coincident", 10, 2, 11, 1))
sketch12.addConstraint(Sketcher.Constraint("Coincident", 11, 2, 8, 1))
sketch12.addConstraint(Sketcher.Constraint("Coincident", 12, 2, 13, 1))
sketch12.addConstraint(Sketcher.Constraint("Coincident", 13, 2, 14, 1))
sketch12.addConstraint(Sketcher.Constraint("Coincident", 14, 2, 15, 1))
sketch12.addConstraint(Sketcher.Constraint("Coincident", 15, 2, 12, 1))
sketch12.addConstraint(Sketcher.Constraint("Coincident", 16, 2, 17, 1))
sketch12.addConstraint(Sketcher.Constraint("Coincident", 17, 2, 18, 1))
sketch12.addConstraint(Sketcher.Constraint("Coincident", 18, 2, 19, 1))
sketch12.addConstraint(Sketcher.Constraint("Coincident", 19, 2, 16, 1))
sketch12.addConstraint(Sketcher.Constraint("Vertical", 0))
sketch12.addConstraint(Sketcher.Constraint("Horizontal", 1))
sketch12.addConstraint(Sketcher.Constraint("Vertical", 2))
sketch12.addConstraint(Sketcher.Constraint("Horizontal", 3))
sketch12.addConstraint(Sketcher.Constraint("Vertical", 4))
sketch12.addConstraint(Sketcher.Constraint("Horizontal", 5))
sketch12.addConstraint(Sketcher.Constraint("Vertical", 6))
sketch12.addConstraint(Sketcher.Constraint("Horizontal", 7))
sketch12.addConstraint(Sketcher.Constraint("Vertical", 8))
sketch12.addConstraint(Sketcher.Constraint("Horizontal", 9))
sketch12.addConstraint(Sketcher.Constraint("Vertical", 10))
sketch12.addConstraint(Sketcher.Constraint("Horizontal", 11))
sketch12.addConstraint(Sketcher.Constraint("Vertical", 12))
sketch12.addConstraint(Sketcher.Constraint("Horizontal", 13))
sketch12.addConstraint(Sketcher.Constraint("Vertical", 14))
sketch12.addConstraint(Sketcher.Constraint("Horizontal", 15))
sketch12.addConstraint(Sketcher.Constraint("Vertical", 16))
sketch12.addConstraint(Sketcher.Constraint("Horizontal", 17))
sketch12.addConstraint(Sketcher.Constraint("Vertical", 18))
sketch12.addConstraint(Sketcher.Constraint("Horizontal", 19))
sketch12.addConstraint(Sketcher.Constraint("Symmetric", 5, 2, 12, 2, -2))
sketch12.addConstraint(Sketcher.Constraint("Symmetric", 7, 2, 14, 2, -2))
sketch12.addConstraint(Sketcher.Constraint("Symmetric", 1, 2, 16, 2, -2))
sketch12.addConstraint(Sketcher.Constraint("Symmetric", 3, 2, 18, 2, -2))
sketch12.addConstraint(Sketcher.Constraint("Horizontal", 1, 2, 4, 2))
sketch12.addConstraint(Sketcher.Constraint("Horizontal", 3, 2, 6, 2))
sketch12.addConstraint(Sketcher.Constraint("Horizontal", 5, 2, 8, 2))
sketch12.addConstraint(Sketcher.Constraint("Horizontal", 7, 2, 10, 2))
sketch12.addConstraint(Sketcher.Constraint("Equal", 3, 5))
sketch12.addConstraint(Sketcher.Constraint("Equal", 7, 9))
sketch12.addConstraint(Sketcher.Constraint("Equal", 19, 0))
sketch12.addConstraint(Sketcher.Constraint("DistanceX", 1, 2, 1, 1, 2.2))
sketch12.addConstraint(Sketcher.Constraint("DistanceY", 2, 2, -1, 1, 4.0))
sketch12.addConstraint(Sketcher.Constraint("DistanceX", 4, 2, 8, 2, 60.0))
sketch12.addConstraint(Sketcher.Constraint("DistanceX", 8, 2, 12, 2, 60.0))
sketch12.addConstraint(Sketcher.Constraint("DistanceX", 0, 2, -1, 1, 72.6))
pocket10 = doc.addObject("PartDesign::Pocket", "Pocket009")
body.addObject(pocket10)
pocket10.Profile = sketch12
pocket10.Length = 0.2

sketch13 = doc.addObject("Sketcher::SketchObject", "Sketch012")
body.addObject(sketch13)
sketch13.AttachmentSupport = (doc.XZ_Plane, [""])
sketch13.MapMode = "FlatFace"
sketch13.AttachmentOffset = App.Placement(Vector(0, 0, -8), App.Rotation())
sketch13.addGeometry(Part.LineSegment(Vector(-100.3, -6.8, 0), Vector(-123.2, -6.8, 0)), False)
sketch13.addGeometry(Part.LineSegment(Vector(-123.2, -6.8, 0), Vector(-123.2, -5.5, 0)), False)
sketch13.addGeometry(Part.LineSegment(Vector(-123.2, -5.5, 0), Vector(-99.1, -5.6, 0)), False)
sketch13.addGeometry(Part.ArcOfCircle(Part.Circle(Vector(-99.1, -6.8, 0), Vector(0, 0, 1), 1.2), math.radians(90), math.radians(180)), False)
sketch13.addConstraint(Sketcher.Constraint("Coincident", 0, 2, 1, 1))
sketch13.addConstraint(Sketcher.Constraint("Coincident", 1, 2, 2, 1))
sketch13.addConstraint(Sketcher.Constraint("Coincident", 2, 2, 3, 1))
sketch13.addConstraint(Sketcher.Constraint("Coincident", 3, 2, 0, 1))
sketch13.addConstraint(Sketcher.Constraint("Horizontal", 0))
sketch13.addConstraint(Sketcher.Constraint("Vertical", 1))
sketch13.addConstraint(Sketcher.Constraint("Horizontal", 3, 3, 0, 2))
sketch13.addConstraint(Sketcher.Constraint("Vertical", 3, 3, 2, 2))
sketch13.addConstraint(Sketcher.Constraint("Radius", 3, 1.2))
sketch13.addConstraint(Sketcher.Constraint("DistanceY", 1, 1, 1, 2, 1.3))
sketch13.addConstraint(Sketcher.Constraint("DistanceX", 0, 2, 0, 1, 22.86))
sketch13.addConstraint(Sketcher.Constraint("DistanceX", 3, 3, -1, 1, 99.1))
sketch13.addConstraint(Sketcher.Constraint("DistanceY", 3, 3, -1, 1, 6.8))
pocket11 = doc.addObject("PartDesign::Pocket", "Pocket010")
body.addObject(pocket11)
pocket11.Profile = sketch13
pocket11.Length = 1.2
pocket11.Reversed = True

sketch14 = doc.addObject("Sketcher::SketchObject", "Sketch013")
body.addObject(sketch14)
sketch14.AttachmentSupport = (doc.XZ_Plane, [""])
sketch14.MapMode = "FlatFace"
sketch14.AttachmentOffset = App.Placement(Vector(0, 0, -6.8), App.Rotation())
sketch14.addGeometry(Part.LineSegment(Vector(-127.3, 0, 0), Vector(-98.9, 0, 0)), False)
sketch14.addGeometry(Part.LineSegment(Vector(-98.9, 0, 0), Vector(-98.9, -3.1, 0)), False)
sketch14.addGeometry(Part.BSplineCurve([Vector(-98.9, -3.1, 0), Vector(-98.9, -6.2, 0), Vector(-102.1, -6.2, 0)], [3, 3], [3.141592654, 4.71238898], False, 2, [1, 0.707106781, 1], False), False)
sketch14.addGeometry(Part.LineSegment(Vector(-102.1, -6.2, 0), Vector(-123.9, -6.2, 0)), False)
sketch14.addGeometry(Part.BSplineCurve([Vector(-123.9, -6.2, 0), Vector(-127.3, -6.2, 0), Vector(-127.3, -2.9, 0)], [3, 3], [4.71238898, 6.283185307], False, 2, [1, 0.707106781, 1], False), False)
sketch14.addGeometry(Part.LineSegment(Vector(-127.3, -2.9, 0), Vector(-127.3, 0, 0)), False)
sketch14.addConstraint(Sketcher.Constraint("Block", 2))
sketch14.addConstraint(Sketcher.Constraint("Block", 4))
sketch14.addConstraint(Sketcher.Constraint("Coincident", 0, 2, 1, 1))
sketch14.addConstraint(Sketcher.Constraint("Coincident", 1, 2, 2, 1))
sketch14.addConstraint(Sketcher.Constraint("Coincident", 2, 2, 3, 1))
sketch14.addConstraint(Sketcher.Constraint("Coincident", 3, 2, 4, 1))
sketch14.addConstraint(Sketcher.Constraint("Coincident", 4, 2, 5, 1))
sketch14.addConstraint(Sketcher.Constraint("Coincident", 5, 2, 0, 1))
sketch14.addConstraint(Sketcher.Constraint("Horizontal", 0))
sketch14.addConstraint(Sketcher.Constraint("Vertical", 1))
sketch14.addConstraint(Sketcher.Constraint("Vertical", 5))
sketch14.addConstraint(Sketcher.Constraint("PointOnObject", 0, 2, -1))
pocket12 = doc.addObject("PartDesign::Pocket", "Pocket011")
body.addObject(pocket12)
pocket12.Profile = sketch14
pocket12.Length = 2.1
pocket12.Reversed = True

sketch15 = doc.addObject("Sketcher::SketchObject", "Sketch014")
body.addObject(sketch15)
sketch15.AttachmentSupport = (doc.XZ_Plane, [""])
sketch15.MapMode = "FlatFace"
sketch15.AttachmentOffset = App.Placement(Vector(0, 0, -5.8), App.Rotation())
sketch15.addGeometry(Part.Circle(Vector(-113, -1, 0), Vector(0, 0, 1), 6), False)
sketch15.addConstraint(Sketcher.Constraint("Diameter", 0, 11.2))
sketch15.addConstraint(Sketcher.Constraint("DistanceX", 0, 3, -1, 1, 113.1))
sketch15.addConstraint(Sketcher.Constraint("DistanceY", 0, 3, -1, 1, 1.3))
pocket13 = doc.addObject("PartDesign::Pocket", "Pocket012")
body.addObject(pocket13)
pocket13.Profile = sketch15
pocket13.Length = 1

doc.recompute()
